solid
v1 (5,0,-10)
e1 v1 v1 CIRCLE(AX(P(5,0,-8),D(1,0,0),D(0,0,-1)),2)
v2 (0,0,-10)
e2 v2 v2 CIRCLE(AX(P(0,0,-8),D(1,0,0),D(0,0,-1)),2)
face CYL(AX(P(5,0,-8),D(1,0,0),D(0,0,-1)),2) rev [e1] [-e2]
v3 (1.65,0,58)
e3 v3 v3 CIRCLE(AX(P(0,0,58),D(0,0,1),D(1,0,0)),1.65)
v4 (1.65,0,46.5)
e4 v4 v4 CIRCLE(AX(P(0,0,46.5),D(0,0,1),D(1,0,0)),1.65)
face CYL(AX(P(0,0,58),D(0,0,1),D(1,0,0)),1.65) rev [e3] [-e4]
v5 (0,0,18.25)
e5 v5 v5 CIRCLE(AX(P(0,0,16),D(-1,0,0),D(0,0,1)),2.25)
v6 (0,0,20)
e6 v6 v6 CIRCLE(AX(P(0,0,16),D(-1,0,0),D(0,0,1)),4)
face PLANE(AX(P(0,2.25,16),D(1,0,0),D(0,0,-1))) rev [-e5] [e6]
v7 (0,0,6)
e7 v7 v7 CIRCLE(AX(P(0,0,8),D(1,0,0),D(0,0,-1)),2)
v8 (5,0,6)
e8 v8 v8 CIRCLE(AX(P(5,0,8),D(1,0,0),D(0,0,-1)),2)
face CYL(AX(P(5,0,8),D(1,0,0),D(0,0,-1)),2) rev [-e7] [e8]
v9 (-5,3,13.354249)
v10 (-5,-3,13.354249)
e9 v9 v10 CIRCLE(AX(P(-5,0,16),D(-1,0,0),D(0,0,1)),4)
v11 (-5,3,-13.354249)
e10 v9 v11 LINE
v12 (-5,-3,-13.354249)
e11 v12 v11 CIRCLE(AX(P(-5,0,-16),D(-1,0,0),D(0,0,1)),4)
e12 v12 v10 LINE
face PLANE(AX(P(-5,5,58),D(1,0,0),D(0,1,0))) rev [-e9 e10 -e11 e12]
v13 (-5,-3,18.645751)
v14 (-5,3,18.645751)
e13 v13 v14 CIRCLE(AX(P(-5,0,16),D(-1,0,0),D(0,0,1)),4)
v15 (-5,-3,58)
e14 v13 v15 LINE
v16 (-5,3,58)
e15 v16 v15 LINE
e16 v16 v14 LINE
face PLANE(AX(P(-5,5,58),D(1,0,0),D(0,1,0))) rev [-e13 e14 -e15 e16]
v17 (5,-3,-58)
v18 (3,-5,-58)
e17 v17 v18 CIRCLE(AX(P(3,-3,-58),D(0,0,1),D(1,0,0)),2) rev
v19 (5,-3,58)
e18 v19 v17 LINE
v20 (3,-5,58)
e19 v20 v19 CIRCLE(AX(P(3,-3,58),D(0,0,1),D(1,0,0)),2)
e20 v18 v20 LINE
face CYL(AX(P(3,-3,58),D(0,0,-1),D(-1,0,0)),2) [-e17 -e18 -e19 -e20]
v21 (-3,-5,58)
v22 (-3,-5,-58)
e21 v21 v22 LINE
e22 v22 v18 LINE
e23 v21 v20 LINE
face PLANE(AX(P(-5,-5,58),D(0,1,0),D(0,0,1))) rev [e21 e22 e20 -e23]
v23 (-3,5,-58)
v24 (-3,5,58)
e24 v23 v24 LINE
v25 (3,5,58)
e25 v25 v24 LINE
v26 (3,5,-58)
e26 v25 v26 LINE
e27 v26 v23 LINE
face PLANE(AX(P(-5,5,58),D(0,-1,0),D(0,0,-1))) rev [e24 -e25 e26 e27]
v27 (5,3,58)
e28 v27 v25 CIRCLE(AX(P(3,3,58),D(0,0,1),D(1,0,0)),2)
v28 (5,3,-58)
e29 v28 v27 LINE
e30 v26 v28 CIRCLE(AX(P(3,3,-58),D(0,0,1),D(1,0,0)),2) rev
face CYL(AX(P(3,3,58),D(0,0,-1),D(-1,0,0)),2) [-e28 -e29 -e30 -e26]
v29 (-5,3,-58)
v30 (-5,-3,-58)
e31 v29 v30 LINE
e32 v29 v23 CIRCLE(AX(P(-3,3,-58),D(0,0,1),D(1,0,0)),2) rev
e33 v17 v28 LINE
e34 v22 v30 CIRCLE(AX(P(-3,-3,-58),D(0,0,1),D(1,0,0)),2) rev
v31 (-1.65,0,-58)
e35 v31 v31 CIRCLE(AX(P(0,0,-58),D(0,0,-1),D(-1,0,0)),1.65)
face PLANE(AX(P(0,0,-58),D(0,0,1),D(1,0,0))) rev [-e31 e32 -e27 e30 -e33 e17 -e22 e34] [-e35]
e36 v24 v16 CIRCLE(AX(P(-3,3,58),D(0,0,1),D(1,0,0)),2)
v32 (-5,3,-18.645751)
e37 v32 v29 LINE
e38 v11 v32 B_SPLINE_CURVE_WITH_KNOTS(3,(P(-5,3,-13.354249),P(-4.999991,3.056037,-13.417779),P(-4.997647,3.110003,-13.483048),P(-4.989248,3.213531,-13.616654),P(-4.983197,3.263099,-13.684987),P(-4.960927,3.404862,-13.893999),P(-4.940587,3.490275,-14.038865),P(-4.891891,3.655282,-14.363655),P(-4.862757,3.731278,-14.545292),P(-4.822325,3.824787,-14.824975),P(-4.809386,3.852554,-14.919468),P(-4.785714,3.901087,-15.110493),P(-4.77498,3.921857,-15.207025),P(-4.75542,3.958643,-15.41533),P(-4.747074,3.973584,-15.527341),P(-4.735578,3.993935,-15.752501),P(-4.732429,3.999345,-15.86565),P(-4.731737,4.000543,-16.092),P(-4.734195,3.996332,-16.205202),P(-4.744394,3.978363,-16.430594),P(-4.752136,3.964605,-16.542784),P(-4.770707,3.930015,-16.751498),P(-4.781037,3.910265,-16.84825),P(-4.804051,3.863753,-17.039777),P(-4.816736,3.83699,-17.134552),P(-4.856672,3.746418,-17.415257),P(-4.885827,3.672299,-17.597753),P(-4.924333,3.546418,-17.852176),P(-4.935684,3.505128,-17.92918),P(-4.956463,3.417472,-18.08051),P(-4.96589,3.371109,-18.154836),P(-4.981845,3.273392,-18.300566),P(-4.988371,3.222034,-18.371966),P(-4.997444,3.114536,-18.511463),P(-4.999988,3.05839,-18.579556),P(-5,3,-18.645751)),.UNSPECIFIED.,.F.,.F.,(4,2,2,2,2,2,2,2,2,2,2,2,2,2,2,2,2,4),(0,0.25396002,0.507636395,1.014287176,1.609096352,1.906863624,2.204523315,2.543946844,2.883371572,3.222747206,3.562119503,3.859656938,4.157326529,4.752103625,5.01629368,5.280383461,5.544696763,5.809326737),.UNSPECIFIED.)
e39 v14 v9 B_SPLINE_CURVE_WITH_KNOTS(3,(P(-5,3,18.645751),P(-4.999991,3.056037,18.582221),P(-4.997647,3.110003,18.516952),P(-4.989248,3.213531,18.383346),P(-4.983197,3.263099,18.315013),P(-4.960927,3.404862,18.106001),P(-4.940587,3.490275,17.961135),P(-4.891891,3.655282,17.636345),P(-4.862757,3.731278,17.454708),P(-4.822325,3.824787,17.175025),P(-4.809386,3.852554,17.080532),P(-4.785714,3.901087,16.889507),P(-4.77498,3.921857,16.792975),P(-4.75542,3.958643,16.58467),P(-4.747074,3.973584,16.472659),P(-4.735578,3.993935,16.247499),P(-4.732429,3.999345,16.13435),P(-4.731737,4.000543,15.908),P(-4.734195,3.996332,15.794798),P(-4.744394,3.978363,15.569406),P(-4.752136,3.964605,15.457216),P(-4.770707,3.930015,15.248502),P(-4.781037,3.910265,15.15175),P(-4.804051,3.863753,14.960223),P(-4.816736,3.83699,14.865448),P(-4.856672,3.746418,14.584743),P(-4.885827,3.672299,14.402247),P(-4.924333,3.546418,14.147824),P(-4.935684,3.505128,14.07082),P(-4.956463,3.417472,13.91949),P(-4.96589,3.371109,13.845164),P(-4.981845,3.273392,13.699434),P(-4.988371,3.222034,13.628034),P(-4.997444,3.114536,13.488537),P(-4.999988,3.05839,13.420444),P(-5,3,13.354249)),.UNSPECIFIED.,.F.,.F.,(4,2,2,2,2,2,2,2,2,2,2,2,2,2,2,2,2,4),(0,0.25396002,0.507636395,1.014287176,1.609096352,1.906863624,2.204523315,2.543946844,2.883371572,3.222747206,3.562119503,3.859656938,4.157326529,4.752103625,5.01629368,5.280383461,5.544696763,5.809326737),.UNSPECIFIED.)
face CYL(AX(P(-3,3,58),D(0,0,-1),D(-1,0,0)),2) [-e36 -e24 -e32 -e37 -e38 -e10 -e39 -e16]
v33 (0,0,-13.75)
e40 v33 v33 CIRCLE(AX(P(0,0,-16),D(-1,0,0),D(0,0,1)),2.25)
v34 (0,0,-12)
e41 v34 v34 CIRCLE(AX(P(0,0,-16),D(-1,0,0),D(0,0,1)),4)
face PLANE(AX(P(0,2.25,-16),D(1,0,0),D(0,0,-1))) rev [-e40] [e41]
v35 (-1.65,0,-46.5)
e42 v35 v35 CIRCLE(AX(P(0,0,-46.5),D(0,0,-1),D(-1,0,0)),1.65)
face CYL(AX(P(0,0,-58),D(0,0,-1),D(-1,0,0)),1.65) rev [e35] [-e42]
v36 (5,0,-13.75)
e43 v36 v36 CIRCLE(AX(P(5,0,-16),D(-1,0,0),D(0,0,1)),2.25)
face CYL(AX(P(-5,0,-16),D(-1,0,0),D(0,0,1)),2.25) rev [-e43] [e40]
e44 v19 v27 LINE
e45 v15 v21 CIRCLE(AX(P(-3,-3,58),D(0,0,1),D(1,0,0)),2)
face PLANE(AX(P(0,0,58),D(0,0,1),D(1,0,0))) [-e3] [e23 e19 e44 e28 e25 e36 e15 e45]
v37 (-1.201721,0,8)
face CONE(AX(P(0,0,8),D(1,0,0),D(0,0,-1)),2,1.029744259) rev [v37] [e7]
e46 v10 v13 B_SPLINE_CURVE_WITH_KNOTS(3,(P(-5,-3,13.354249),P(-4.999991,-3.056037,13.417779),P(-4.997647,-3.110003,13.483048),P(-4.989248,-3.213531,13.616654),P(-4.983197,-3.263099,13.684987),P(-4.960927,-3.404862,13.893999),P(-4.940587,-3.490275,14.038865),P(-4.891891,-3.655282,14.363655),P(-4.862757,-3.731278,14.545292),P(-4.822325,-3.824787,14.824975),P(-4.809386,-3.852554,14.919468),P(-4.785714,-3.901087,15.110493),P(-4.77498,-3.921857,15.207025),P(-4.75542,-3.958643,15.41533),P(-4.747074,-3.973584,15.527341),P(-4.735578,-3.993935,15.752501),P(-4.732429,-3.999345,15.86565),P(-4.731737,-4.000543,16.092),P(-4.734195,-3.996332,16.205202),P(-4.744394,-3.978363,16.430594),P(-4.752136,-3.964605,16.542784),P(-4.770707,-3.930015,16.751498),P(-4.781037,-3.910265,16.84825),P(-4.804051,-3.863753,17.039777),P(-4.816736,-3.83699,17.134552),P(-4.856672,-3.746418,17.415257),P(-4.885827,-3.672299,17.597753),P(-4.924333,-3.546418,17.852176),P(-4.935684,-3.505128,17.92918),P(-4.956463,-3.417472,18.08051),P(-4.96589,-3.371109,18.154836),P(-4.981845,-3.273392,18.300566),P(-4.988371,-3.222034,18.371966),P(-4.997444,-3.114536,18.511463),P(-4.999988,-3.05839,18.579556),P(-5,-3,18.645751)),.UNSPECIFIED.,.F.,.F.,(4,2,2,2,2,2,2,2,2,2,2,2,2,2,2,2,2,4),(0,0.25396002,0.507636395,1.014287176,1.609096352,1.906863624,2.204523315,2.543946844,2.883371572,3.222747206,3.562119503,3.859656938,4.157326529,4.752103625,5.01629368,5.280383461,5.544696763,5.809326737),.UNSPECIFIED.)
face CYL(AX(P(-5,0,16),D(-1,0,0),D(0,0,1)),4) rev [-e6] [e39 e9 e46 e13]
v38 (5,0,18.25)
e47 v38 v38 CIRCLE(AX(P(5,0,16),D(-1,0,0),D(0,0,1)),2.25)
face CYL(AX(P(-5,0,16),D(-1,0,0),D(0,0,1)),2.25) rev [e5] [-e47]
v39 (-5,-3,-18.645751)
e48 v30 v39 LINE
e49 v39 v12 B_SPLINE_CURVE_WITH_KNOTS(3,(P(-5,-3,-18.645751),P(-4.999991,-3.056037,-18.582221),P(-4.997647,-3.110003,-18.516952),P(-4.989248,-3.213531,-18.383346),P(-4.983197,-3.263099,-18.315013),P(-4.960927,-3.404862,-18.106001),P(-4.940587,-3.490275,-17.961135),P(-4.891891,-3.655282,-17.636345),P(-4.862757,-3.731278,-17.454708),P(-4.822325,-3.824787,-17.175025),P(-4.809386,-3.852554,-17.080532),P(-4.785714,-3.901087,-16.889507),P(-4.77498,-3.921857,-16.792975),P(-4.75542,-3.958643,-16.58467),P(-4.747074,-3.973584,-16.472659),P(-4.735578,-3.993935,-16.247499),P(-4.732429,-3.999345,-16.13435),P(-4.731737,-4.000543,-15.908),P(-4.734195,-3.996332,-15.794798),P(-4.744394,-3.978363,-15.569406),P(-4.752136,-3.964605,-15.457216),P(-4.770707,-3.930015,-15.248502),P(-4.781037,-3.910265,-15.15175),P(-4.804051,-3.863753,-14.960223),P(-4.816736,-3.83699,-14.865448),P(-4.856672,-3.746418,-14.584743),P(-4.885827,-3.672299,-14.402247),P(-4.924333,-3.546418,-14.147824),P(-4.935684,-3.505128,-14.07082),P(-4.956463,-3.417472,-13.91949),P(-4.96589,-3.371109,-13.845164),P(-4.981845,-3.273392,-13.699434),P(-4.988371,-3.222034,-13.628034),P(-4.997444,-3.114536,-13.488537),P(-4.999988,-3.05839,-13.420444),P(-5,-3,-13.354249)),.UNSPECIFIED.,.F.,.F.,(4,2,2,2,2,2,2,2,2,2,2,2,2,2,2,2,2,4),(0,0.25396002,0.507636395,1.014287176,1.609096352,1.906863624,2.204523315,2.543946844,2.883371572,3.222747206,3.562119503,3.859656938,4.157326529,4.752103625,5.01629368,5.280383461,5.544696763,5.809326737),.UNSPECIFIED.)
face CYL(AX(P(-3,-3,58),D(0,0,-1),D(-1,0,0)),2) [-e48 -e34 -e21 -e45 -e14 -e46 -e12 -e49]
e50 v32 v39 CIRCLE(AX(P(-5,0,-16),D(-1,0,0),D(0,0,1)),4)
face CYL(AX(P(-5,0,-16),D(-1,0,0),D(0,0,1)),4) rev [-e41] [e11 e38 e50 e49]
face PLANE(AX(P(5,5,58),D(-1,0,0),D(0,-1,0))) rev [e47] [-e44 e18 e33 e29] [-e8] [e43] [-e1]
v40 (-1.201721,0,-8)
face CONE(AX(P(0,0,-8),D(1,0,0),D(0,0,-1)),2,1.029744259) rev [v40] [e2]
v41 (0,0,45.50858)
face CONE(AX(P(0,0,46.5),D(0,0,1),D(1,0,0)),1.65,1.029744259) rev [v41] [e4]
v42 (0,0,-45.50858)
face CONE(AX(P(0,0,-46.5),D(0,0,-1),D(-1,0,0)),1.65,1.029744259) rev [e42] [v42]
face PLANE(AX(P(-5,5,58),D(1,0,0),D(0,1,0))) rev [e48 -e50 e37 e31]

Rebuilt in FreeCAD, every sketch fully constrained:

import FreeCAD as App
import Part
import Sketcher
from FreeCAD import Vector


def edges_at(feature, points):
    """Names of the edges that pass closest to the given points."""
    edges = feature.Shape.Edges
    near = lambda p: min(range(len(edges)), key=lambda i: edges[i].distToShape(Part.Vertex(*p))[0])
    return sorted({f"Edge{near(p) + 1}" for p in points})

doc = App.newDocument("Part")
body = doc.addObject("PartDesign::Body", "Body")

# Sketch on XY plane
sketch1 = body.newObject("Sketcher::SketchObject", "Sketch")
sketch1.AttachmentSupport = (doc.getObject("XY_Plane"), [""])
sketch1.MapMode = "FlatFace"
sketch1.addGeometry([
    Part.LineSegment(Vector(-5, 5, 0), Vector(-5, -5, 0)),
    Part.LineSegment(Vector(-5, -5, 0), Vector(5, -5, 0)),
    Part.LineSegment(Vector(5, -5, 0), Vector(5, 5, 0)),
    Part.LineSegment(Vector(5, 5, 0), Vector(-5, 5, 0)),
], False)
sketch1.addConstraint([
    Sketcher.Constraint("Coincident", 0, 2, 1, 1),
    Sketcher.Constraint("Coincident", 1, 2, 2, 1),
    Sketcher.Constraint("Coincident", 2, 2, 3, 1),
    Sketcher.Constraint("Coincident", 3, 2, 0, 1),
    Sketcher.Constraint("Vertical", 0),
    Sketcher.Constraint("Horizontal", 1),
    Sketcher.Constraint("Vertical", 2),
    Sketcher.Constraint("Horizontal", 3),
    Sketcher.Constraint("Symmetric", 0, 2, 2, 2, -1, 1),
    Sketcher.Constraint("Equal", 3, 0),
    Sketcher.Constraint("DistanceX", 1, 1, 1, 2, 10.0),
])
pad1 = body.newObject("PartDesign::Pad", "Pad")
pad1.Profile = sketch1
pad1.Length = 116
pad1.Midplane = True
doc.recompute()

fillet = body.newObject("PartDesign::Fillet", "Fillet")
fillet.Base = (pad1, edges_at(pad1, [
    (-5, 5, 0),
    (5, 5, 0),
    (5, -5, 0),
    (-5, -5, 0),
]))
fillet.Radius = 2

# Sketch on XY plane
sketch2 = body.newObject("Sketcher::SketchObject", "Sketch001")
sketch2.AttachmentSupport = (doc.getObject("XY_Plane"), [""])
sketch2.MapMode = "FlatFace"
sketch2.AttachmentOffset = App.Placement(Vector(0, 0, 58), App.Rotation())
sketch2.addGeometry(Part.Circle(Vector(0, 0, 0), Vector(0, 0, 1), 1.65), False)
sketch2.addConstraint([
    Sketcher.Constraint("Coincident", 0, 3, -1, 1),
    Sketcher.Constraint("Diameter", 0, 3.3),
])
doc.recompute()
hole = body.newObject("PartDesign::Hole", "Hole")
hole.Profile = sketch2
hole.ThreadType = "None"
hole.Diameter = 3.3
hole.DepthType = "Dimension"
hole.Depth = 11.5
hole.DrillPoint = "Angled"
hole.DrillPointAngle = 118

# Sketch on XY plane
sketch3 = body.newObject("Sketcher::SketchObject", "Sketch002")
sketch3.AttachmentSupport = (doc.getObject("XY_Plane"), [""])
sketch3.MapMode = "FlatFace"
sketch3.AttachmentOffset = App.Placement(Vector(0, 0, -58), App.Rotation())
sketch3.addGeometry(Part.Circle(Vector(0, 0, 0), Vector(0, 0, 1), 1.65), False)
sketch3.addConstraint([
    Sketcher.Constraint("Coincident", 0, 3, -1, 1),
    Sketcher.Constraint("Diameter", 0, 3.3),
])
doc.recompute()
hole2 = body.newObject("PartDesign::Hole", "Hole001")
hole2.Profile = sketch3
hole2.ThreadType = "None"
hole2.Diameter = 3.3
hole2.DepthType = "Dimension"
hole2.Depth = 11.5
hole2.DrillPoint = "Angled"
hole2.DrillPointAngle = 118
hole2.Reversed = True

# Sketch on YZ plane
sketch4 = body.newObject("Sketcher::SketchObject", "Sketch003")
sketch4.AttachmentSupport = (doc.getObject("YZ_Plane"), [""])
sketch4.MapMode = "FlatFace"
sketch4.AttachmentOffset = App.Placement(Vector(0, 0, 5), App.Rotation())
sketch4.addGeometry([
    Part.Circle(Vector(0, -8, 0), Vector(0, 0, 1), 2),
    Part.Circle(Vector(0, 8, 0), Vector(0, 0, 1), 2),
], False)
sketch4.addConstraint([
    Sketcher.Constraint("Equal", 0, 1),
    Sketcher.Constraint("Symmetric", 0, 3, 1, 3, -1, 1),
    Sketcher.Constraint("PointOnObject", 0, 3, -2),
    Sketcher.Constraint("Diameter", 0, 4.0),
    Sketcher.Constraint("DistanceY", 0, 3, -1, 1, 8.0),
])
doc.recompute()
hole3 = body.newObject("PartDesign::Hole", "Hole002")
hole3.Profile = sketch4
hole3.ThreadType = "None"
hole3.Diameter = 4
hole3.DepthType = "Dimension"
hole3.Depth = 5
hole3.DrillPoint = "Angled"
hole3.DrillPointAngle = 118

# Sketch on YZ plane
sketch5 = body.newObject("Sketcher::SketchObject", "Sketch004")
sketch5.AttachmentSupport = (doc.getObject("YZ_Plane"), [""])
sketch5.MapMode = "FlatFace"
sketch5.AttachmentOffset = App.Placement(Vector(0, 0, -5), App.Rotation())
sketch5.addGeometry([
    Part.Circle(Vector(0, -16, 0), Vector(0, 0, 1), 2.25),
    Part.Circle(Vector(0, 16, 0), Vector(0, 0, 1), 2.25),
], False)
sketch5.addConstraint([
    Sketcher.Constraint("Equal", 0, 1),
    Sketcher.Constraint("Symmetric", 0, 3, 1, 3, -1, 1),
    Sketcher.Constraint("PointOnObject", 0, 3, -2),
    Sketcher.Constraint("Diameter", 0, 4.5),
    Sketcher.Constraint("DistanceY", 0, 3, -1, 1, 16.0),
])
doc.recompute()
hole4 = body.newObject("PartDesign::Hole", "Hole003")
hole4.Profile = sketch5
hole4.ThreadType = "None"
hole4.Diameter = 4.5
hole4.DepthType = "ThroughAll"
hole4.HoleCutType = "Counterbore"
hole4.HoleCutDiameter = 8
hole4.HoleCutDepth = 5
hole4.Reversed = True

doc.recompute()
